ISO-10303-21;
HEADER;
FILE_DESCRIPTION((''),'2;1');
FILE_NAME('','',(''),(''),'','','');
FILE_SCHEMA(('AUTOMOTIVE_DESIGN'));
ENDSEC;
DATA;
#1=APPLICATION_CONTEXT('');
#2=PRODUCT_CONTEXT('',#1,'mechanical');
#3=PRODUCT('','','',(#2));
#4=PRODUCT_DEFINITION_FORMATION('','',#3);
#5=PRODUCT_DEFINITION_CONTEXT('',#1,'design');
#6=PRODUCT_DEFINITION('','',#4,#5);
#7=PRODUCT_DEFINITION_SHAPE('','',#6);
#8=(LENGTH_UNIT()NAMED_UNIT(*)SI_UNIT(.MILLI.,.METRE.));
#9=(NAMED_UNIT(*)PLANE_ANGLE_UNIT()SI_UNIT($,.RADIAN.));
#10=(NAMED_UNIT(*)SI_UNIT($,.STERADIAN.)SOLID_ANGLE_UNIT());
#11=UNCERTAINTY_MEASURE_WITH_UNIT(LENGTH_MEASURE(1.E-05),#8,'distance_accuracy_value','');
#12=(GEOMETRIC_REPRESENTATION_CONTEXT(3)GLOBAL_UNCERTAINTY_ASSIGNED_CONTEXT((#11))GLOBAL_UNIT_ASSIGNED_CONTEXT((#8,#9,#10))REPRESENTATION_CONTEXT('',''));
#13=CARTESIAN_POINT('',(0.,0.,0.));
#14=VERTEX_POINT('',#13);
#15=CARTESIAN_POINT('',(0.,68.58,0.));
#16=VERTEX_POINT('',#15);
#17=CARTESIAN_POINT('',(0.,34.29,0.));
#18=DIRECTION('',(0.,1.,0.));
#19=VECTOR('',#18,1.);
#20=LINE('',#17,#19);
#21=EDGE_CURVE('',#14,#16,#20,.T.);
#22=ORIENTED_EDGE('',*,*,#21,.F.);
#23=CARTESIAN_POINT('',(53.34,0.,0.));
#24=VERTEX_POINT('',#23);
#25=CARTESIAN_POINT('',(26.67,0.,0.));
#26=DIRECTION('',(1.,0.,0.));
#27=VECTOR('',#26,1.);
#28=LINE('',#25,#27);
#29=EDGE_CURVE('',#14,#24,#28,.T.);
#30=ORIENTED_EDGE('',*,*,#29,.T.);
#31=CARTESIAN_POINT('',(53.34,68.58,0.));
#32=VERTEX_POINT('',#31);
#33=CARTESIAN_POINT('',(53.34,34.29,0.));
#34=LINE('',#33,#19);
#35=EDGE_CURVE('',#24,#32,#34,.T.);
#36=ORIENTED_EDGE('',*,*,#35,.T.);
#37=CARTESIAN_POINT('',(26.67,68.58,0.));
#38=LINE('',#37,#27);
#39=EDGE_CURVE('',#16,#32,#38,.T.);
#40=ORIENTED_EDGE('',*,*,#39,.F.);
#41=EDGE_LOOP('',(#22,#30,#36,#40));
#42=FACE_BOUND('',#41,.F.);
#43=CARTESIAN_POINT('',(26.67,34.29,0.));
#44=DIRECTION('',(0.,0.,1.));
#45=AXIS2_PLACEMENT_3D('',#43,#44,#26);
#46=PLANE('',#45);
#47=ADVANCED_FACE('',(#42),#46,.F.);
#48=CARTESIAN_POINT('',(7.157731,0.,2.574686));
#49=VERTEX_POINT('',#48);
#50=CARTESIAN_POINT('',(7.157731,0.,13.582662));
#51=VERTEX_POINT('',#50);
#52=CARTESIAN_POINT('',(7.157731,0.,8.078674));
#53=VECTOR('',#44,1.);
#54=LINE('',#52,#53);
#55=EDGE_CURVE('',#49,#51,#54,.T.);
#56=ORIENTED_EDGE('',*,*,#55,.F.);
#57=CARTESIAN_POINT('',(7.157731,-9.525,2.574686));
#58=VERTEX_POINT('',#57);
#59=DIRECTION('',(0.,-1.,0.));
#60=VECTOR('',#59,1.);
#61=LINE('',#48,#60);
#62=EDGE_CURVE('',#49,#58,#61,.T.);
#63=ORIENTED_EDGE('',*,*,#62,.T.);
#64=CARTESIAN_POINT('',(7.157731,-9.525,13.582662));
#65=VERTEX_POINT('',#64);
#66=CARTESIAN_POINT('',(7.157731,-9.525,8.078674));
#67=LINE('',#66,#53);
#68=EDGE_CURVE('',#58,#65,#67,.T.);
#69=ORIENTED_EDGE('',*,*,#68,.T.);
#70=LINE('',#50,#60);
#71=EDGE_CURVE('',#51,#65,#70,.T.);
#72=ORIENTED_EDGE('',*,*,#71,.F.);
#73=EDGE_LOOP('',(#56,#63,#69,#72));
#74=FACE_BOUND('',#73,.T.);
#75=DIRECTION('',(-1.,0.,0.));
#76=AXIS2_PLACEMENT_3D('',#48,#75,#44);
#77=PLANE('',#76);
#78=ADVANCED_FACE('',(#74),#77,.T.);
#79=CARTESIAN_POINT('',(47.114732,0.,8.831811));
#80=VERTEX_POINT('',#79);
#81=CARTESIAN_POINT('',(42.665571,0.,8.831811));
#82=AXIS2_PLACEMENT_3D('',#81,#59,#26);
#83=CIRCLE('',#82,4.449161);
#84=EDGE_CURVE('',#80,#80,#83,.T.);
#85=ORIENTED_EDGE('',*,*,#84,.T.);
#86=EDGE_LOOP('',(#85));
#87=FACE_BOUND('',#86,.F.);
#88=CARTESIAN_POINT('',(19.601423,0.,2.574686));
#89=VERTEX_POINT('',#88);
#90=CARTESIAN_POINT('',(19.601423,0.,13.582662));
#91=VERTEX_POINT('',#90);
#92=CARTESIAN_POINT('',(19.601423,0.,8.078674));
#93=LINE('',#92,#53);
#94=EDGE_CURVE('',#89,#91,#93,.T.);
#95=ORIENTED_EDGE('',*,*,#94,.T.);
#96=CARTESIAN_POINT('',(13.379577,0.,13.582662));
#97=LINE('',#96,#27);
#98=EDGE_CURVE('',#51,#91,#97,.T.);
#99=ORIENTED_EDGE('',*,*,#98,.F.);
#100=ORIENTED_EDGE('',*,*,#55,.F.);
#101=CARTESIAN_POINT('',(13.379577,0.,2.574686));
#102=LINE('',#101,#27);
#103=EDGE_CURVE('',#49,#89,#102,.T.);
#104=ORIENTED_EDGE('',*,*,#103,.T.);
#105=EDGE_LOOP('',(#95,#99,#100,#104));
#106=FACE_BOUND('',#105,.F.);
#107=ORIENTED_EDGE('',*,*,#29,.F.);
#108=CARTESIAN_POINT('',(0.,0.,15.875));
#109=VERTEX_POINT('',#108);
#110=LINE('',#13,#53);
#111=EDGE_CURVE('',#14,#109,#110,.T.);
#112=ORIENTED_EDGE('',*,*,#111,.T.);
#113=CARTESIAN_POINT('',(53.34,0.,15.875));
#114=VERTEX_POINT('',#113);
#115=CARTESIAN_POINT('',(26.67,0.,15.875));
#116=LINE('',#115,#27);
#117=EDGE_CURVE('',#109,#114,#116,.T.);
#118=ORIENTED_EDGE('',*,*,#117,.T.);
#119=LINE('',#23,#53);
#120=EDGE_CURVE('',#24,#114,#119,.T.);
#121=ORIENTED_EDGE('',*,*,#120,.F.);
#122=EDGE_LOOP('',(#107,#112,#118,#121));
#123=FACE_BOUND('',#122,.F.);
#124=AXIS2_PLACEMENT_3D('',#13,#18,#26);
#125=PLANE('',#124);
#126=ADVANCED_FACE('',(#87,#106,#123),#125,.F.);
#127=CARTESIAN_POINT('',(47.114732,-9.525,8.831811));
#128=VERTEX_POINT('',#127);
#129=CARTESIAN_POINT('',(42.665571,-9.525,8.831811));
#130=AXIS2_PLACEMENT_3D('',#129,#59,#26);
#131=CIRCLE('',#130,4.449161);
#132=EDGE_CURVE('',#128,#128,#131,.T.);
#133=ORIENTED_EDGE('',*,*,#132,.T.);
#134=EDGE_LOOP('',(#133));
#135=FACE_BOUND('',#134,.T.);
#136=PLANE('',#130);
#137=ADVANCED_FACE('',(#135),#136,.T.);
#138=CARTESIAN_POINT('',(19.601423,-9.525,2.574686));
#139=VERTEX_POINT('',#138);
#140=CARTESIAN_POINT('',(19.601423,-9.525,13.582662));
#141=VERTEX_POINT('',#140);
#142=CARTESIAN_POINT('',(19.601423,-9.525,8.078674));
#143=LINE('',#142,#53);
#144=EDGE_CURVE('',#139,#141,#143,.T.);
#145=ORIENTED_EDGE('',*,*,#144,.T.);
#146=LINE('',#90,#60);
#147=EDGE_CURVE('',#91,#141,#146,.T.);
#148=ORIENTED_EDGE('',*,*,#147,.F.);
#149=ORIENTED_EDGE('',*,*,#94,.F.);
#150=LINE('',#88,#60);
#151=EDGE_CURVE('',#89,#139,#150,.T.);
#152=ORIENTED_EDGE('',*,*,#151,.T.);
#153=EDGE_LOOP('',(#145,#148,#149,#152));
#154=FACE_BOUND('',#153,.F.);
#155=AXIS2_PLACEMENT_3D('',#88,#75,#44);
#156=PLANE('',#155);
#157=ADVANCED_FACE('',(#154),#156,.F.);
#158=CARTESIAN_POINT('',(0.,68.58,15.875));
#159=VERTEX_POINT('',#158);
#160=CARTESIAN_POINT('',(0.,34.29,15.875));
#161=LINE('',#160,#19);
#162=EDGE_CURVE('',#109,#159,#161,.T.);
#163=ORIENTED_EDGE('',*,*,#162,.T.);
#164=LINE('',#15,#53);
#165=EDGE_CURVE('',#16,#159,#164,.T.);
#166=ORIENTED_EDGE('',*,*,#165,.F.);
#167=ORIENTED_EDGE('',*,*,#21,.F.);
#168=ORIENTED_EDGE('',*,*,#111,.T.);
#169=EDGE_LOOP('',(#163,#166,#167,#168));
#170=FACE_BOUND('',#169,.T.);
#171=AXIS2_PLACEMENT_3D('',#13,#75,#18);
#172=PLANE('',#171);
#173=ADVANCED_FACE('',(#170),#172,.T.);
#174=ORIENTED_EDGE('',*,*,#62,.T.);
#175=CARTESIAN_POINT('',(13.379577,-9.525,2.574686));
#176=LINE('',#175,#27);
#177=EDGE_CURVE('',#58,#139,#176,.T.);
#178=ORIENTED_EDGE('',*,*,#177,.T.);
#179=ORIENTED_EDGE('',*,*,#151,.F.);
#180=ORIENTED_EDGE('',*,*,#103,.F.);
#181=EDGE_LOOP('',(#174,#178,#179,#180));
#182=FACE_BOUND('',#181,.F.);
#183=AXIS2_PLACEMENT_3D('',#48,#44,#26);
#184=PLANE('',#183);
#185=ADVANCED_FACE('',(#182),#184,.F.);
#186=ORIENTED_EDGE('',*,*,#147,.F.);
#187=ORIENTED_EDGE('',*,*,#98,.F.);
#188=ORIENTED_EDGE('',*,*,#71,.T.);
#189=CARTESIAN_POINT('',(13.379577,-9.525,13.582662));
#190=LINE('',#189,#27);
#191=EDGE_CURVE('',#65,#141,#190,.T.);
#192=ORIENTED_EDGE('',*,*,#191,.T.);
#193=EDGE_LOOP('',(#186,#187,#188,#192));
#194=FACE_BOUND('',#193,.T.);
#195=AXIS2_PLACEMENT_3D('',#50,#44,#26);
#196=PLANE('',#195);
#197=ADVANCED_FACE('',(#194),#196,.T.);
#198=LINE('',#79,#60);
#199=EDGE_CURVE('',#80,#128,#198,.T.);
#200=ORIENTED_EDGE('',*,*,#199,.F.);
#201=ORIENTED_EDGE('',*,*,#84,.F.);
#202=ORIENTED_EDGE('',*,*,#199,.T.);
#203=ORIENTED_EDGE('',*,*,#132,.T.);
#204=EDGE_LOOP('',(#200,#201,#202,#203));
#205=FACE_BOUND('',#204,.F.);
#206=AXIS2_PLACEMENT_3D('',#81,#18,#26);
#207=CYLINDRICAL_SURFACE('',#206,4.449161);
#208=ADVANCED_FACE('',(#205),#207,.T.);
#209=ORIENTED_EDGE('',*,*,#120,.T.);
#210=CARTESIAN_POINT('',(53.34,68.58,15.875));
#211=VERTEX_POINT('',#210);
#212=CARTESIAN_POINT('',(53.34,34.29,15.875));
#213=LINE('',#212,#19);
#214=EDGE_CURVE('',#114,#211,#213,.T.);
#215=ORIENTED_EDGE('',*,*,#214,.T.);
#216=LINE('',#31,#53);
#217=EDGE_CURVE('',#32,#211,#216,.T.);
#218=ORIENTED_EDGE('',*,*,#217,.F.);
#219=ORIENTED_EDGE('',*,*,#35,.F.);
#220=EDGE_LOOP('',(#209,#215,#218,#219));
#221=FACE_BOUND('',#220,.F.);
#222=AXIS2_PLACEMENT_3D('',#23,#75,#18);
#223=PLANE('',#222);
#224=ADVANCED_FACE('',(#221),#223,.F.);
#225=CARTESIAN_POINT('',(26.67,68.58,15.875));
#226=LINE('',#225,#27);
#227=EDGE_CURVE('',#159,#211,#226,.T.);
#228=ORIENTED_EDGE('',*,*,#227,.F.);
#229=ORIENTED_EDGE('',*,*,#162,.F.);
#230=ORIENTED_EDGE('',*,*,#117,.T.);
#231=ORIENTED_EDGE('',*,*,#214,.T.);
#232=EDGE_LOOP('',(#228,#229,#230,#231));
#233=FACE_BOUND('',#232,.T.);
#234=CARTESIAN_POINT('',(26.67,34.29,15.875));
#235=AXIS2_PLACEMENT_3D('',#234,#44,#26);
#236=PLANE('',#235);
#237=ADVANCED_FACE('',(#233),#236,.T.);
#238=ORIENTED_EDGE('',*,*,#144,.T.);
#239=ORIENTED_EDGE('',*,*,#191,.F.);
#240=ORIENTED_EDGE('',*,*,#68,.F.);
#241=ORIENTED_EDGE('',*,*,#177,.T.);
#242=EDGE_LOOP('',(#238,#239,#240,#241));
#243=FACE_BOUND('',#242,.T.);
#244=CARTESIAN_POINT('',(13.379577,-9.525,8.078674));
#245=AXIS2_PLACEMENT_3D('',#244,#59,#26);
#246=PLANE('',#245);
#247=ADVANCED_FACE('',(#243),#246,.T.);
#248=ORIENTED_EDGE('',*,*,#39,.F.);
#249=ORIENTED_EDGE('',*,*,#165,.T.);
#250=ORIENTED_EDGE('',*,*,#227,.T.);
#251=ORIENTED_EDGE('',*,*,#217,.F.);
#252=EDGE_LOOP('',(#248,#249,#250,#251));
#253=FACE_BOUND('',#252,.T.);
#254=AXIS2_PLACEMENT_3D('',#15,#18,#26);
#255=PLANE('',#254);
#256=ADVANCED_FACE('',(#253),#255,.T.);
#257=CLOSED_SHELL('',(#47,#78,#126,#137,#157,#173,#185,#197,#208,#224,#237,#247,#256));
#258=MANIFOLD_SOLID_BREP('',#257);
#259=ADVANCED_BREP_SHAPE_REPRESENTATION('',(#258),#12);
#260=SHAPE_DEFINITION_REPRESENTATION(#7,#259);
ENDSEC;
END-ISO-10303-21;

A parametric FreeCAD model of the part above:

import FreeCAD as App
import Part
import Sketcher
Q = App.Units.Quantity

doc = App.newDocument("Part")
body = doc.addObject("PartDesign::Body", "Body")

# Sketch on XY plane
sketch1 = body.newObject("Sketcher::SketchObject", "Sketch")
sketch1.AttachmentSupport = (doc.getObject("XY_Plane"), [""])
sketch1.MapMode = "FlatFace"
sketch1.addGeometry(Part.LineSegment(App.Vector(0, 69, 0), App.Vector(0, 0, 0)), False)
sketch1.addGeometry(Part.LineSegment(App.Vector(0, 0, 0), App.Vector(53, 0, 0)), False)
sketch1.addGeometry(Part.LineSegment(App.Vector(53, 0, 0), App.Vector(53, 69, 0)), False)
sketch1.addGeometry(Part.LineSegment(App.Vector(53, 69, 0), App.Vector(0, 69, 0)), False)
sketch1.addConstraint(Sketcher.Constraint("Coincident", 0, 2, 1, 1))
sketch1.addConstraint(Sketcher.Constraint("Coincident", 1, 2, 2, 1))
sketch1.addConstraint(Sketcher.Constraint("Coincident", 2, 2, 3, 1))
sketch1.addConstraint(Sketcher.Constraint("Coincident", 3, 2, 0, 1))
sketch1.addConstraint(Sketcher.Constraint("Vertical", 0))
sketch1.addConstraint(Sketcher.Constraint("Horizontal", 1))
sketch1.addConstraint(Sketcher.Constraint("Vertical", 2))
sketch1.addConstraint(Sketcher.Constraint("Horizontal", 3))
sketch1.addConstraint(Sketcher.Constraint("Coincident", 0, 2, -1, 1))
sketch1.addConstraint(Sketcher.Constraint("DistanceX", 1, 1, 1, 2, Q("2.1 in")))
sketch1.addConstraint(Sketcher.Constraint("DistanceY", 0, 2, 0, 1, Q("2.7 in")))
pad1 = body.newObject("PartDesign::Pad", "Pad")
pad1.Profile = sketch1
pad1.Length = Q("0.625 in")

# Sketch on XZ plane
sketch2 = body.newObject("Sketcher::SketchObject", "Sketch001")
sketch2.AttachmentSupport = (doc.getObject("XZ_Plane"), [""])
sketch2.MapMode = "FlatFace"
sketch2.addGeometry(Part.LineSegment(App.Vector(7.2, 13.6, 0), App.Vector(7.2, 2.6, 0)), False)
sketch2.addGeometry(Part.LineSegment(App.Vector(7.2, 2.6, 0), App.Vector(19.6, 2.6, 0)), False)
sketch2.addGeometry(Part.LineSegment(App.Vector(19.6, 2.6, 0), App.Vector(19.6, 13.6, 0)), False)
sketch2.addGeometry(Part.LineSegment(App.Vector(19.6, 13.6, 0), App.Vector(7.2, 13.6, 0)), False)
sketch2.addGeometry(Part.Circle(App.Vector(42.7, 8.8, 0), App.Vector(0, 0, 1), 4.4), False)
sketch2.addConstraint(Sketcher.Constraint("Coincident", 0, 2, 1, 1))
sketch2.addConstraint(Sketcher.Constraint("Coincident", 1, 2, 2, 1))
sketch2.addConstraint(Sketcher.Constraint("Coincident", 2, 2, 3, 1))
sketch2.addConstraint(Sketcher.Constraint("Coincident", 3, 2, 0, 1))
sketch2.addConstraint(Sketcher.Constraint("Vertical", 0))
sketch2.addConstraint(Sketcher.Constraint("Horizontal", 1))
sketch2.addConstraint(Sketcher.Constraint("Vertical", 2))
sketch2.addConstraint(Sketcher.Constraint("Horizontal", 3))
sketch2.addConstraint(Sketcher.Constraint("Diameter", 4, Q("8.898322 mm")))
sketch2.addConstraint(Sketcher.Constraint("DistanceX", 1, 1, 1, 2, Q("12.443692 mm")))
sketch2.addConstraint(Sketcher.Constraint("DistanceY", 0, 2, 0, 1, Q("11.007975 mm")))
sketch2.addConstraint(Sketcher.Constraint("DistanceX", -1, 1, 4, 3, Q("42.665571 mm")))
sketch2.addConstraint(Sketcher.Constraint("DistanceY", -1, 1, 4, 3, Q("8.831811 mm")))
sketch2.addConstraint(Sketcher.Constraint("DistanceX", -1, 1, 0, 2, Q("7.157731 mm")))
sketch2.addConstraint(Sketcher.Constraint("DistanceY", -1, 1, 2, 2, Q("13.582662 mm")))
pad2 = body.newObject("PartDesign::Pad", "Pad001")
pad2.Profile = sketch2
pad2.Length = Q("0.375 in")

doc.recompute()
